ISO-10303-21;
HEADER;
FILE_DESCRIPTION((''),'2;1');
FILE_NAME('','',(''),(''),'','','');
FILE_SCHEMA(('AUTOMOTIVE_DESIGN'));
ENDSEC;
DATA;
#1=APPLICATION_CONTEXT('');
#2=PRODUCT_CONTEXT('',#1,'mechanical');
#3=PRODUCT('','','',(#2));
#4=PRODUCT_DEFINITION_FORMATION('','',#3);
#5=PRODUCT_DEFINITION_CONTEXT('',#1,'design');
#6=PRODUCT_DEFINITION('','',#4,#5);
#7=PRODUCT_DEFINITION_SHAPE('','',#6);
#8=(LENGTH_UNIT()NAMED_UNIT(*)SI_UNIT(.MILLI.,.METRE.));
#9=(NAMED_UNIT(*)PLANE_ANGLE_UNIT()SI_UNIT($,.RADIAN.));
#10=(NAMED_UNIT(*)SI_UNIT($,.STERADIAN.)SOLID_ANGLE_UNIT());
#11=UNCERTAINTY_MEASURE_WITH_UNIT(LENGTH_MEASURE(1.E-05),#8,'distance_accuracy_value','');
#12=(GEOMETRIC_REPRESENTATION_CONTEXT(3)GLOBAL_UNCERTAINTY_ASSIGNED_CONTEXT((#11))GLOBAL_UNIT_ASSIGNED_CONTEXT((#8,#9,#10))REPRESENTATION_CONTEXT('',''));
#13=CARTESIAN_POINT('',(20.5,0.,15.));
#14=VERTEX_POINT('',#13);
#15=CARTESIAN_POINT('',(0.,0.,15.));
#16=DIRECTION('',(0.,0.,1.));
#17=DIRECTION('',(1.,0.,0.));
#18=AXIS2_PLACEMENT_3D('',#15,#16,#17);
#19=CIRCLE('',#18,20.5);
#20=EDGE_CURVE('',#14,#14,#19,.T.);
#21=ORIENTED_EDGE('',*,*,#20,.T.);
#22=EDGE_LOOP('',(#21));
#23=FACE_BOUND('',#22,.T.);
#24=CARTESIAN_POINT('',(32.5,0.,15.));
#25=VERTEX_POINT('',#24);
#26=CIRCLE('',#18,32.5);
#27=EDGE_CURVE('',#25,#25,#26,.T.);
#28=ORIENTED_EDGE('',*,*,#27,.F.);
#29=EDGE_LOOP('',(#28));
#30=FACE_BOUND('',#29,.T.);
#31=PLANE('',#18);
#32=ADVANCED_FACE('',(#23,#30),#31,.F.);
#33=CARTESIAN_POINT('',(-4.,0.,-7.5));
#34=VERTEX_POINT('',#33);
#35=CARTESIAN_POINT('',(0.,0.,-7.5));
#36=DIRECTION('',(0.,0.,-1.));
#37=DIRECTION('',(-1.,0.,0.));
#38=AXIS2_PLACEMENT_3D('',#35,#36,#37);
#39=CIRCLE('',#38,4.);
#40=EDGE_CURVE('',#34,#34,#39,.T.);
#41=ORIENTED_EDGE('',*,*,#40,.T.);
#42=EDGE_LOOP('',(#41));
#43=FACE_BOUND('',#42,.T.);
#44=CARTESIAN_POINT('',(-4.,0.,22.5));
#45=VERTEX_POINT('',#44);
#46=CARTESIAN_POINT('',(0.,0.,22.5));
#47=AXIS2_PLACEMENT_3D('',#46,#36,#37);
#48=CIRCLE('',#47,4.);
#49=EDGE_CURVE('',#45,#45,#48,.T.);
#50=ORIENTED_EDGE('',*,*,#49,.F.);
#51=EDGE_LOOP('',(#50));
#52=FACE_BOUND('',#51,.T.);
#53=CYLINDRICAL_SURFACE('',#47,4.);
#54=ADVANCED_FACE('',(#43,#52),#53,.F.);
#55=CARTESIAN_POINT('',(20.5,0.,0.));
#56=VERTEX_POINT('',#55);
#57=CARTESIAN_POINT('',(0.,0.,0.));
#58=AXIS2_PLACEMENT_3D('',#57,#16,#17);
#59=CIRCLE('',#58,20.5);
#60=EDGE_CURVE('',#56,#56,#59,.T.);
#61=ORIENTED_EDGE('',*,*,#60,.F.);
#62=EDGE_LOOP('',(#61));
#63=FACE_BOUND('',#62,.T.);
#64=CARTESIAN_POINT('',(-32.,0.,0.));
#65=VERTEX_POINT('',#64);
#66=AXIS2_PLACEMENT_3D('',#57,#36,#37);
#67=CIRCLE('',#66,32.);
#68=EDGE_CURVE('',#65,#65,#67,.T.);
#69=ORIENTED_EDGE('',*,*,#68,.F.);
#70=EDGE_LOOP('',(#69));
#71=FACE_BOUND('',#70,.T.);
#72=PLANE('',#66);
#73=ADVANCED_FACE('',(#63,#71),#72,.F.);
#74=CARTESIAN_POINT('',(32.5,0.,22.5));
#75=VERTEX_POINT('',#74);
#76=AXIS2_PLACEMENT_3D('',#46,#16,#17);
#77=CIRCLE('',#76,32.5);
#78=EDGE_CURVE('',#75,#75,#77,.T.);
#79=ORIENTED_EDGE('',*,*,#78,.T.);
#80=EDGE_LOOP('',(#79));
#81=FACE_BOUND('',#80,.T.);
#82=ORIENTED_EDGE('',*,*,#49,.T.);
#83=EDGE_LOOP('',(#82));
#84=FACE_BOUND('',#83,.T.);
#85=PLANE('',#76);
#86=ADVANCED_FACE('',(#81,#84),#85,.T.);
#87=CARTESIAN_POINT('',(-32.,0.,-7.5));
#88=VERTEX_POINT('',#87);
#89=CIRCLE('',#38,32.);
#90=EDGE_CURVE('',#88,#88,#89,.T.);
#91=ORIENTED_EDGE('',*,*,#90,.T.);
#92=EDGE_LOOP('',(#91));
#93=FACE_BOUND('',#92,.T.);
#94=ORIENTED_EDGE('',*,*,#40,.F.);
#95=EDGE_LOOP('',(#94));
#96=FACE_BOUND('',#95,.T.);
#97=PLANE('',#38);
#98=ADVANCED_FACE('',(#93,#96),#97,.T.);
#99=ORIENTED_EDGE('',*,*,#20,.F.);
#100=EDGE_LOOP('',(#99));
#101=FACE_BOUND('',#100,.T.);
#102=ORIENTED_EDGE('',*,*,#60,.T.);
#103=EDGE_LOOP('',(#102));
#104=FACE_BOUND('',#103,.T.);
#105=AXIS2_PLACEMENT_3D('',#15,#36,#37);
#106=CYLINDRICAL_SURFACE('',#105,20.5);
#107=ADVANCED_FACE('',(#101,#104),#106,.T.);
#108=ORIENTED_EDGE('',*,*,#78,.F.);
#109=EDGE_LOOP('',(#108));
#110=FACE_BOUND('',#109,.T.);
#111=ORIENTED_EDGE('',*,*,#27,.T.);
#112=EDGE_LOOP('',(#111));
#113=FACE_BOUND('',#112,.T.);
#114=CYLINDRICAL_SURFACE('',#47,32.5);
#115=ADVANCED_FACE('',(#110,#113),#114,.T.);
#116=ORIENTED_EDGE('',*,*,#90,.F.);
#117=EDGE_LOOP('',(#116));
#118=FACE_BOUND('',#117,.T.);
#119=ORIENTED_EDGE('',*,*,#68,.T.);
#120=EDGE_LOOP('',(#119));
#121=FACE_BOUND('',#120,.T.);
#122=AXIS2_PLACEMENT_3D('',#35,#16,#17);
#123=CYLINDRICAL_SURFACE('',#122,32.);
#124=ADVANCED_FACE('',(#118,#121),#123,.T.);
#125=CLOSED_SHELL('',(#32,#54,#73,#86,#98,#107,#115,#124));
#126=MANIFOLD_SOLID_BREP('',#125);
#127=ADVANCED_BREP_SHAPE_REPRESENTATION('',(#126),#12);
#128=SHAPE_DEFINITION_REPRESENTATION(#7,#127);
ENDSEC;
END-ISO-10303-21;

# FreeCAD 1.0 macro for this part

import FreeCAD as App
import Part
import Sketcher

V = App.Vector
Q = App.Units.Quantity

doc = App.newDocument("Part")
body = doc.addObject("PartDesign::Body", "Body")

# Sketch on XY plane
sketch1 = doc.addObject("Sketcher::SketchObject", "Sketch")
body.addObject(sketch1)
sketch1.AttachmentSupport = (doc.XY_Plane, [""])
sketch1.MapMode = "FlatFace"
sketch1.addGeometry(Part.Circle(V(0, 0, 0), V(0, 0, 1), 20.5), False)
sketch1.addConstraint(Sketcher.Constraint("Coincident", 0, 3, -1, 1))
sketch1.addConstraint(Sketcher.Constraint("Diameter", 0, Q("41 mm")))
pad1 = doc.addObject("PartDesign::Pad", "Pad")
body.addObject(pad1)
pad1.Profile = sketch1
pad1.Length = 15

# Sketch on XY plane
sketch2 = doc.addObject("Sketcher::SketchObject", "Sketch001")
body.addObject(sketch2)
sketch2.AttachmentSupport = (doc.XY_Plane, [""])
sketch2.MapMode = "FlatFace"
sketch2.AttachmentOffset = App.Placement(V(0, 0, 15), App.Rotation())
sketch2.addGeometry(Part.Circle(V(0, 0, 0), V(0, 0, 1), 32.5), False)
sketch2.addConstraint(Sketcher.Constraint("Coincident", 0, 3, -1, 1))
sketch2.addConstraint(Sketcher.Constraint("Diameter", 0, Q("65 mm")))
pad2 = doc.addObject("PartDesign::Pad", "Pad001")
body.addObject(pad2)
pad2.Profile = sketch2
pad2.Length = 7.5

# Sketch on XY plane
sketch3 = doc.addObject("Sketcher::SketchObject", "Sketch002")
body.addObject(sketch3)
sketch3.AttachmentSupport = (doc.XY_Plane, [""])
sketch3.MapMode = "FlatFace"
sketch3.addGeometry(Part.Circle(V(0, 0, 0), V(0, 0, 1), 32), False)
sketch3.addConstraint(Sketcher.Constraint("Coincident", 0, 3, -1, 1))
sketch3.addConstraint(Sketcher.Constraint("Diameter", 0, Q("64 mm")))
pad3 = doc.addObject("PartDesign::Pad", "Pad002")
body.addObject(pad3)
pad3.Profile = sketch3
pad3.Length = 7.5
pad3.Reversed = True

# Sketch on XY plane
sketch4 = doc.addObject("Sketcher::SketchObject", "Sketch003")
body.addObject(sketch4)
sketch4.AttachmentSupport = (doc.XY_Plane, [""])
sketch4.MapMode = "FlatFace"
sketch4.AttachmentOffset = App.Placement(V(0, 0, -7.5), App.Rotation())
sketch4.addGeometry(Part.Circle(V(0, 0, 0), V(0, 0, 1), 4), False)
sketch4.addConstraint(Sketcher.Constraint("Coincident", 0, 3, -1, 1))
sketch4.addConstraint(Sketcher.Constraint("Diameter", 0, Q("8 mm")))
pocket1 = doc.addObject("PartDesign::Pocket", "Pocket")
body.addObject(pocket1)
pocket1.Profile = sketch4
pocket1.Length = 30
pocket1.Reversed = True

doc.recompute()
